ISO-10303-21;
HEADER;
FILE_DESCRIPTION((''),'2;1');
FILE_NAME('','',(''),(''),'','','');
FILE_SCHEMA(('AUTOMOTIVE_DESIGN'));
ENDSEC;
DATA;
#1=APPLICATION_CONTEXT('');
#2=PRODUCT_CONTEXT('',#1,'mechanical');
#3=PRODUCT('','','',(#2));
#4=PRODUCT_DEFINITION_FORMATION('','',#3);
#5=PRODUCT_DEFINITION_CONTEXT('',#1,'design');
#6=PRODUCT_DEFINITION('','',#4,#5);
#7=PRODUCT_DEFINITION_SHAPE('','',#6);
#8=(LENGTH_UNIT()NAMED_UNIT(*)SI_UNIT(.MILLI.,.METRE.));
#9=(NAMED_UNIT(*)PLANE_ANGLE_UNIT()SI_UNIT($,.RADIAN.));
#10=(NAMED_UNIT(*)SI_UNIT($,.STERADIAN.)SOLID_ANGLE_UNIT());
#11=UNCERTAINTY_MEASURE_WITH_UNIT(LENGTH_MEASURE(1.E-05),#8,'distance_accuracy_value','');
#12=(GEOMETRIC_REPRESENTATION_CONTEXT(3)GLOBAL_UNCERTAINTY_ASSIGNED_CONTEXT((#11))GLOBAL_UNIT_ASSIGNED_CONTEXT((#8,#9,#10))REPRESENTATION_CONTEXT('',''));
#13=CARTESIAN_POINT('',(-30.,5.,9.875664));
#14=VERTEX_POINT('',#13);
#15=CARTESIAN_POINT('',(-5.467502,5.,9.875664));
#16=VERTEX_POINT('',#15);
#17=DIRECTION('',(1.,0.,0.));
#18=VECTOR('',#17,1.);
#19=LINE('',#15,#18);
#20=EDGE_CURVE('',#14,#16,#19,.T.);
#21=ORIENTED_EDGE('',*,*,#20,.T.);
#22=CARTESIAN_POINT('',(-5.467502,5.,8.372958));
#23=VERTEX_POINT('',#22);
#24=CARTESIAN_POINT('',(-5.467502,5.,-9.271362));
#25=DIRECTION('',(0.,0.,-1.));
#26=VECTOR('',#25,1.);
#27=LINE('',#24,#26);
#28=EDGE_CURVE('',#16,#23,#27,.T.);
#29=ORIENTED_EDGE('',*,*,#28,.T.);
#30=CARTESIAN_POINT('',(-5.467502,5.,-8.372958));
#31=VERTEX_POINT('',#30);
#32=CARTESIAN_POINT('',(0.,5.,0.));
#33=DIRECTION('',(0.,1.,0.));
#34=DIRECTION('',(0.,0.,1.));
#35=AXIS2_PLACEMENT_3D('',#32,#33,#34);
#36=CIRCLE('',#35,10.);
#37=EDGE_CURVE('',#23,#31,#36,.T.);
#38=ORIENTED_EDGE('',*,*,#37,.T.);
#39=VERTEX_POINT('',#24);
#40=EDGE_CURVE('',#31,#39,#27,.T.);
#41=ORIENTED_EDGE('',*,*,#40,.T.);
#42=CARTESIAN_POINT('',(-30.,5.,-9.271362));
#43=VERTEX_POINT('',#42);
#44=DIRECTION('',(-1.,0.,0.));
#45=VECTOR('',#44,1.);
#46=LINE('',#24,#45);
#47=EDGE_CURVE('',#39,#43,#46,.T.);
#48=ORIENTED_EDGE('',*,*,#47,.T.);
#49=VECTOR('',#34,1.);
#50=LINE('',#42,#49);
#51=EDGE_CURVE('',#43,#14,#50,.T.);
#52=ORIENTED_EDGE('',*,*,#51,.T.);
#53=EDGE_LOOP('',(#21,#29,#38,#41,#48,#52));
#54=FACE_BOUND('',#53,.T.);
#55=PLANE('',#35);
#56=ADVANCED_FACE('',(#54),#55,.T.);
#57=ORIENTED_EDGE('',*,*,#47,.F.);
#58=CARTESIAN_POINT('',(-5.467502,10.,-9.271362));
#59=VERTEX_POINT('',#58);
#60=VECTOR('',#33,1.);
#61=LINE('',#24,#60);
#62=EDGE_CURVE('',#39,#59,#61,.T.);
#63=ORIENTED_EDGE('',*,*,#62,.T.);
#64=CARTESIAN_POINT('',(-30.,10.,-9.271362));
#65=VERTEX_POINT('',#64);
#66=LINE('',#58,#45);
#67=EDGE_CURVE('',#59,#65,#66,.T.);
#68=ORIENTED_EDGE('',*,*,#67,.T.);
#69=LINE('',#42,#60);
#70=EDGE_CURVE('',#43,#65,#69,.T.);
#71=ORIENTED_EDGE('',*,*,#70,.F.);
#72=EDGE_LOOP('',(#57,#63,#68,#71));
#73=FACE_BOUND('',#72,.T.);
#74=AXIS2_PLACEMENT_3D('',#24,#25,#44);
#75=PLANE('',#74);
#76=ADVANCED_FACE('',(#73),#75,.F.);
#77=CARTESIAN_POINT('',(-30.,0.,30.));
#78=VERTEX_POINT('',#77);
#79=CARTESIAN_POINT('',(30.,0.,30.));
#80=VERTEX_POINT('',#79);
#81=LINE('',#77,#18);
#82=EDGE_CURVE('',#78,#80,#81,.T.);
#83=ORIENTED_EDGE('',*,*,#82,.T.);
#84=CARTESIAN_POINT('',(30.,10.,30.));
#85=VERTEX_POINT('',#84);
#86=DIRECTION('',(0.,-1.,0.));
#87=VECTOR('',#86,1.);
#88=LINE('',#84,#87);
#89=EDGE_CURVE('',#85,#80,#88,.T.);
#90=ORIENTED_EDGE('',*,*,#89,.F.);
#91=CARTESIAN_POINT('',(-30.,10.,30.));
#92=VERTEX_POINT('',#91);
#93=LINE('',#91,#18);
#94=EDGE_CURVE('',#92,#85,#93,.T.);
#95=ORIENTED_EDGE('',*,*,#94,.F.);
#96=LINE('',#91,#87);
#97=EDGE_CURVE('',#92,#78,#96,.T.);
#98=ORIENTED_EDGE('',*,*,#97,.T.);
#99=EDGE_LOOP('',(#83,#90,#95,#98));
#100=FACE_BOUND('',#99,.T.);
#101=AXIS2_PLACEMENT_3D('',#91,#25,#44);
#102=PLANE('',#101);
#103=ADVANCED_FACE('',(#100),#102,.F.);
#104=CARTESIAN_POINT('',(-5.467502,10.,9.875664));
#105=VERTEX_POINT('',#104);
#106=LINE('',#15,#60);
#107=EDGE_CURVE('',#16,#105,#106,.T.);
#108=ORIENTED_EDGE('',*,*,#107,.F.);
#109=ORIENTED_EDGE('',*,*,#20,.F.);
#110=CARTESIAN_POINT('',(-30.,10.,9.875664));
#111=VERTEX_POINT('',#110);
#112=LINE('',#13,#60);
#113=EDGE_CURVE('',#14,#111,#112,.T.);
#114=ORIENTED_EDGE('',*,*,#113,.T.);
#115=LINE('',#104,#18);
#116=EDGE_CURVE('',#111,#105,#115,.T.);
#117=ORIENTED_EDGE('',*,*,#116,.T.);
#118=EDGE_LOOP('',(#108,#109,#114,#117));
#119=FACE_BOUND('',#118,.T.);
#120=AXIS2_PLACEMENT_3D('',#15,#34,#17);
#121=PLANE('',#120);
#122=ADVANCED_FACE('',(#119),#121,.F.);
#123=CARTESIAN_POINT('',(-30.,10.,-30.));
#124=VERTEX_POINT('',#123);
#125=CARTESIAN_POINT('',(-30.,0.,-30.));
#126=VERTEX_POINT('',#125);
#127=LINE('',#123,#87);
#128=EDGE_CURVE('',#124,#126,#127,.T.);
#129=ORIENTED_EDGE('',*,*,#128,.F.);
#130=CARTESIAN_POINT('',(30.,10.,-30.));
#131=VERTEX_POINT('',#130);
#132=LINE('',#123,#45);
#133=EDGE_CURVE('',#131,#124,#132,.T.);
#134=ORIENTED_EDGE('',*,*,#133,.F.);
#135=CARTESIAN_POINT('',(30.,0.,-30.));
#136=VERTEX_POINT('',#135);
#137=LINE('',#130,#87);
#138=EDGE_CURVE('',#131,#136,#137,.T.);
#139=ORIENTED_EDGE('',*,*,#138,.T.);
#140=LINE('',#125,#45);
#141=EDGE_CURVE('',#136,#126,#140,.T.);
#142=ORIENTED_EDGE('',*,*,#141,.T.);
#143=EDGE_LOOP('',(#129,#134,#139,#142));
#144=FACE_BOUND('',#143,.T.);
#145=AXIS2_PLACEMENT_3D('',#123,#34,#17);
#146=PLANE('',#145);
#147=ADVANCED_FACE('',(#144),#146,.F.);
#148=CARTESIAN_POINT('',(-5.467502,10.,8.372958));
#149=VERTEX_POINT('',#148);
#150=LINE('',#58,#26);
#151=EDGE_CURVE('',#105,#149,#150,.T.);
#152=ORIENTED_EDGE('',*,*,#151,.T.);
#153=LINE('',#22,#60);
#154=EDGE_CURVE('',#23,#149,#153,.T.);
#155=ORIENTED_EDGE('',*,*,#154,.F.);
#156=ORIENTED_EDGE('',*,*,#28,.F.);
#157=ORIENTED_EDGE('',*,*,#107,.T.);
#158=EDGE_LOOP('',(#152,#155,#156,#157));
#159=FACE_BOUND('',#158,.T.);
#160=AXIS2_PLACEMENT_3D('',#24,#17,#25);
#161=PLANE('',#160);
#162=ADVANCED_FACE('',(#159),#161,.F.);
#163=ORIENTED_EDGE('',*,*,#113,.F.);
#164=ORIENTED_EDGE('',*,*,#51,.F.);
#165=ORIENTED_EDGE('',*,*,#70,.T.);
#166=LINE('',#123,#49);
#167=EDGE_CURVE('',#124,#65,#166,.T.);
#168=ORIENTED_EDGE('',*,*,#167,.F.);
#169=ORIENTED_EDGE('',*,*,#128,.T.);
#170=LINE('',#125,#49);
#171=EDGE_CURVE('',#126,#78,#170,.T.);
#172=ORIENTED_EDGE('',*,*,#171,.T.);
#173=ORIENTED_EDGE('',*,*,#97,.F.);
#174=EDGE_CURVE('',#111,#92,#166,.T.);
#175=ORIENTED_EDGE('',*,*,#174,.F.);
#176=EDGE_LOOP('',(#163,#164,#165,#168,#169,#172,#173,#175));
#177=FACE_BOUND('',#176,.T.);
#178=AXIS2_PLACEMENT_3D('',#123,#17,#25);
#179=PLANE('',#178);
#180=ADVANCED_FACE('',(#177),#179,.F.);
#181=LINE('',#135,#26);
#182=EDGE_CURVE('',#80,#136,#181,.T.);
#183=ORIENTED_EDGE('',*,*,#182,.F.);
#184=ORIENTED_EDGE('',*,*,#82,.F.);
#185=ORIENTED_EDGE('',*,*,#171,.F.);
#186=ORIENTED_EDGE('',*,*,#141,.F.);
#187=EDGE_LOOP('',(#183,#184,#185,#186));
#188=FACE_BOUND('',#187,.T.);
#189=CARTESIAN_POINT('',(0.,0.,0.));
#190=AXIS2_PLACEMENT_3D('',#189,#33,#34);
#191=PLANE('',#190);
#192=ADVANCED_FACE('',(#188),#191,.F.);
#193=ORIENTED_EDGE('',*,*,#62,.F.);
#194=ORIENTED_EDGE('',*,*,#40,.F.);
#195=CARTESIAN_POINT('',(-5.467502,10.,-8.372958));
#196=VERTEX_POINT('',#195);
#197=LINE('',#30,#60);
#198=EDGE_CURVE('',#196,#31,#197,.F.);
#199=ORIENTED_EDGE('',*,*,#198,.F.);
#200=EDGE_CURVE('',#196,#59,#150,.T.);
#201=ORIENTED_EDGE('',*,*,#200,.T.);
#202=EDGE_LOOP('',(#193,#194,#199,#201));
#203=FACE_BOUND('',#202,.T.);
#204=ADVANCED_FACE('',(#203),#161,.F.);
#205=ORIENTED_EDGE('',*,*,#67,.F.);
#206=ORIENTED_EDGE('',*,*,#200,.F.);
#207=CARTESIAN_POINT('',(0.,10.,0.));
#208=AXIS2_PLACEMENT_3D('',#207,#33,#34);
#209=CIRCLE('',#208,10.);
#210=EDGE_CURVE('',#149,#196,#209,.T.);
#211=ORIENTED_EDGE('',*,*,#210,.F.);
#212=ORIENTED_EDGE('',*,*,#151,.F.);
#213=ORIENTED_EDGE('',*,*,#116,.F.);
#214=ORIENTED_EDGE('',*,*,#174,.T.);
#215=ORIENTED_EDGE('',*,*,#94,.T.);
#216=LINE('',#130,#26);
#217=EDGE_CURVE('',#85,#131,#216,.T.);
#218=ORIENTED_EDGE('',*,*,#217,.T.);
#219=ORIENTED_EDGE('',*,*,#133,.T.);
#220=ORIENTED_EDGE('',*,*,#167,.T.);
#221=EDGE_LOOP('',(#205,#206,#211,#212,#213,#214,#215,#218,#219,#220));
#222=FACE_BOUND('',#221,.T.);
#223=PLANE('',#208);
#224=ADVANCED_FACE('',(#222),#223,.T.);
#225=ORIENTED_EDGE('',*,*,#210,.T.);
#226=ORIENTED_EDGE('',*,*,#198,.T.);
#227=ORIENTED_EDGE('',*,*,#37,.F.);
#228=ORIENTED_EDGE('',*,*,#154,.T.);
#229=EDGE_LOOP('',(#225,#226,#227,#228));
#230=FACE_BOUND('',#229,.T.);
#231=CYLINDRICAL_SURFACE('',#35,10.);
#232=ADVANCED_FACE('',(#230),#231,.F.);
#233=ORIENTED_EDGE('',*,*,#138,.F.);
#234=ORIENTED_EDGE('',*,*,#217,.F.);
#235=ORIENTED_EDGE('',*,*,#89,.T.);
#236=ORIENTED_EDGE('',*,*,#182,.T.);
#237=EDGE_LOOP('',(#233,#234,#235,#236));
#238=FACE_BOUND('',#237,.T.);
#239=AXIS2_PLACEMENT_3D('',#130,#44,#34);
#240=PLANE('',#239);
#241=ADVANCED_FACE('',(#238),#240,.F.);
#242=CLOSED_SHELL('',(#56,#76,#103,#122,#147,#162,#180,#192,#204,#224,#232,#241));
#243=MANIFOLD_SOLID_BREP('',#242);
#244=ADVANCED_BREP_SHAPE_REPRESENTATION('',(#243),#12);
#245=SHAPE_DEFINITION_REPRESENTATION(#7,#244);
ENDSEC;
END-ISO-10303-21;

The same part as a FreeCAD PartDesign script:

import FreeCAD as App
import Part
import Sketcher
Q = App.Units.Quantity


def add_polygon(sketch, points):
    """Adds a closed chain of lines whose ends are joined by coincident constraints."""
    first, n = sketch.GeometryCount, len(points)
    for a, b in zip(points, points[1:] + points[:1]):
        sketch.addGeometry(Part.LineSegment(App.Vector(*a, 0), App.Vector(*b, 0)), False)
    for i in range(n):
        sketch.addConstraint(Sketcher.Constraint("Coincident", first + i, 2, first + (i + 1) % n, 1))

doc = App.newDocument("Part")
body = doc.addObject("PartDesign::Body", "Body")

sketch1 = body.newObject("Sketcher::SketchObject", "Sketch")
sketch1.AttachmentSupport = (doc.getObject("XZ_Plane"), [""])
sketch1.MapMode = "FlatFace"
add_polygon(sketch1, [(-30, -30), (-30, 30), (30, 30), (30, -30)])
sketch1.addConstraint(Sketcher.Constraint("Vertical", 0))
sketch1.addConstraint(Sketcher.Constraint("Horizontal", 1))
sketch1.addConstraint(Sketcher.Constraint("Vertical", 2))
sketch1.addConstraint(Sketcher.Constraint("Horizontal", 3))
sketch1.addConstraint(Sketcher.Constraint("Symmetric", 0, 2, 2, 2, -1, 1))
sketch1.addConstraint(Sketcher.Constraint("Equal", 3, 0))
sketch1.addConstraint(Sketcher.Constraint("DistanceX", 1, 1, 1, 2, Q("60 mm")))
pad1 = body.newObject("PartDesign::Pad", "Pad")
pad1.Profile = sketch1
pad1.Length = 10
pad1.Reversed = True

sketch2 = body.newObject("Sketcher::SketchObject", "Sketch001")
sketch2.AttachmentSupport = (doc.getObject("XZ_Plane"), [""])
sketch2.MapMode = "FlatFace"
sketch2.AttachmentOffset = App.Placement(App.Vector(0, 0, -10), App.Rotation())
sketch2.addGeometry(Part.Circle(App.Vector(0, 0, 0), App.Vector(0, 0, 1), 10), False)
sketch2.addConstraint(Sketcher.Constraint("Coincident", 0, 3, -1, 1))
sketch2.addConstraint(Sketcher.Constraint("Diameter", 0, Q("20 mm")))
pocket1 = body.newObject("PartDesign::Pocket", "Pocket")
pocket1.Profile = sketch2
pocket1.Length = 5
pocket1.Reversed = True

sketch3 = body.newObject("Sketcher::SketchObject", "Sketch002")
sketch3.AttachmentSupport = (doc.getObject("XZ_Plane"), [""])
sketch3.MapMode = "FlatFace"
sketch3.AttachmentOffset = App.Placement(App.Vector(0, 0, -10), App.Rotation())
add_polygon(sketch3, [(-30, -9), (-30, 10), (-5, 10), (-5, -9)])
sketch3.addConstraint(Sketcher.Constraint("Vertical", 0))
sketch3.addConstraint(Sketcher.Constraint("Horizontal", 1))
sketch3.addConstraint(Sketcher.Constraint("Vertical", 2))
sketch3.addConstraint(Sketcher.Constraint("Horizontal", 3))
sketch3.addConstraint(Sketcher.Constraint("DistanceX", 0, 2, -1, 1, Q("30 mm")))
sketch3.addConstraint(Sketcher.Constraint("DistanceX", 1, 1, 1, 2, Q("24.532498 mm")))
sketch3.addConstraint(Sketcher.Constraint("DistanceY", 0, 1, 0, 2, Q("19.147027 mm")))
sketch3.addConstraint(Sketcher.Constraint("DistanceY", -1, 1, 0, 2, Q("9.875664 mm")))
pocket2 = body.newObject("PartDesign::Pocket", "Pocket001")
pocket2.Profile = sketch3
pocket2.Length = 5
pocket2.Reversed = True

doc.recompute()
